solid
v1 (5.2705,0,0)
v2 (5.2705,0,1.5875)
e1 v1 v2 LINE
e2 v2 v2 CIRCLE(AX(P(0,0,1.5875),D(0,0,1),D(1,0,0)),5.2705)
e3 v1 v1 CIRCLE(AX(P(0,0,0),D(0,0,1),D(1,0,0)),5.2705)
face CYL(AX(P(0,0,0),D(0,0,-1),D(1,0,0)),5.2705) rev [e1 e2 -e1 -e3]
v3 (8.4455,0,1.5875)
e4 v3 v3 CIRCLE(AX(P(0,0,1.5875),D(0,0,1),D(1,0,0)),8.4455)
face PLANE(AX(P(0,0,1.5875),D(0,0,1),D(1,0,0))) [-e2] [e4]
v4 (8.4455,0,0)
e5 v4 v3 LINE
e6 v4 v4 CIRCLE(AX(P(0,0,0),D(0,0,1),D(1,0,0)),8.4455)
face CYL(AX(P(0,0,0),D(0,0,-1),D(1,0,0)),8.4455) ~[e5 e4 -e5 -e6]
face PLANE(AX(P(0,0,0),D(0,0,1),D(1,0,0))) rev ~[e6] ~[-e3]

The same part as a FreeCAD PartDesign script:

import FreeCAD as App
import Part
import Sketcher
Q = App.Units.Quantity

doc = App.newDocument("Part")
body = doc.addObject("PartDesign::Body", "Body")

sketch1 = body.newObject("Sketcher::SketchObject", "Sketch")
sketch1.AttachmentSupport = (doc.getObject("XY_Plane"), [""])
sketch1.MapMode = "FlatFace"
sketch1.addGeometry([
    Part.Circle(App.Vector(0, 0, 0), App.Vector(0, 0, 1), 8),
    Part.Circle(App.Vector(0, 0, 0), App.Vector(0, 0, 1), 5),
], False)
sketch1.addConstraint([
    Sketcher.Constraint("Coincident", 0, 3, -1, 1),
    Sketcher.Constraint("Coincident", 1, 3, -1, 1),
    Sketcher.Constraint("Diameter", 1, Q("0.415 in")),
    Sketcher.Constraint("Diameter", 0, Q("0.665 in")),
])
pad1 = body.newObject("PartDesign::Pad", "Pad")
pad1.Profile = sketch1
pad1.Length = Q("0.0625 in")

doc.recompute()
